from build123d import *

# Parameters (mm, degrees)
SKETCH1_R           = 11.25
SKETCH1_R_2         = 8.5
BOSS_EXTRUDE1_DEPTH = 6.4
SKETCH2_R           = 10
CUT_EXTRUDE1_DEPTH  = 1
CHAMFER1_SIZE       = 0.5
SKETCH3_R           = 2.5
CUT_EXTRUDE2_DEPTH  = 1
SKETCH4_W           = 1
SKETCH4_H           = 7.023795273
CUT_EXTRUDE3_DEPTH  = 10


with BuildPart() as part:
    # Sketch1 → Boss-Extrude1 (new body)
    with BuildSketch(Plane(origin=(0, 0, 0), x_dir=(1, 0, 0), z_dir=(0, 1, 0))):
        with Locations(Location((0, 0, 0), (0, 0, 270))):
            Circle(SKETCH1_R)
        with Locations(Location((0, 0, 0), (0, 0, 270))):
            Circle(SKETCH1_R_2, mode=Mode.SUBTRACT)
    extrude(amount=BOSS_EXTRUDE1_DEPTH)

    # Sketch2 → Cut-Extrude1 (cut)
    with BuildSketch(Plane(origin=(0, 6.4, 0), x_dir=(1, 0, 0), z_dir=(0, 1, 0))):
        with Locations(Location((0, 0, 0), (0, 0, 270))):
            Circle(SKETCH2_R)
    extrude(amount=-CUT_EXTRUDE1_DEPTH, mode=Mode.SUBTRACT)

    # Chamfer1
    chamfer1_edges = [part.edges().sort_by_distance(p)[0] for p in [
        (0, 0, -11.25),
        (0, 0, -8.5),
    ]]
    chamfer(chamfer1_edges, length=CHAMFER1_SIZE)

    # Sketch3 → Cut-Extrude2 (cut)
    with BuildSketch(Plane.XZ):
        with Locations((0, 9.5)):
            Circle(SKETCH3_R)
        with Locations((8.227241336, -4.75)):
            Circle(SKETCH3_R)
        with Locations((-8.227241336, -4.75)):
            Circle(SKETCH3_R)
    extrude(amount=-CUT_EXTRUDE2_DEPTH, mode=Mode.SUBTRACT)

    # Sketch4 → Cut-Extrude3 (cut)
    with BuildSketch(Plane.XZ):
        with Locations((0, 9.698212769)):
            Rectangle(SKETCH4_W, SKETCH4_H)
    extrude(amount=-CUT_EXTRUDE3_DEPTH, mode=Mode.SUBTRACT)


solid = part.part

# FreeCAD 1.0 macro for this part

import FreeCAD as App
import Part
import Sketcher


def edges_at(feature, points):
    """Names of the edges that pass closest to the given points."""
    edges = feature.Shape.Edges
    near = lambda p: min(range(len(edges)), key=lambda i: edges[i].distToShape(Part.Vertex(*p))[0])
    return sorted({f"Edge{near(p) + 1}" for p in points})


def add_polygon(sketch, points):
    """Adds a closed chain of lines whose ends are joined by coincident constraints."""
    first, n = sketch.GeometryCount, len(points)
    for a, b in zip(points, points[1:] + points[:1]):
        sketch.addGeometry(Part.LineSegment(App.Vector(*a, 0), App.Vector(*b, 0)), False)
    for i in range(n):
        sketch.addConstraint(Sketcher.Constraint("Coincident", first + i, 2, first + (i + 1) % n, 1))

doc = App.newDocument("Part")
body = doc.addObject("PartDesign::Body", "Body")

sketch1 = doc.addObject("Sketcher::SketchObject", "Sketch")
body.addObject(sketch1)
sketch1.AttachmentSupport = (doc.XZ_Plane, [""])
sketch1.MapMode = "FlatFace"
sketch1.addGeometry([
    Part.Circle(App.Vector(0, 0, 0), App.Vector(0, 0, 1), 11),
    Part.Circle(App.Vector(0, 0, 0), App.Vector(0, 0, 1), 8),
], False)
sketch1.addConstraint([
    Sketcher.Constraint("Coincident", 0, 3, -1, 1),
    Sketcher.Constraint("Coincident", 1, 3, -1, 1),
    Sketcher.Constraint("Diameter", 1, 17.0),
    Sketcher.Constraint("Diameter", 0, 22.5),
])
pad1 = doc.addObject("PartDesign::Pad", "Pad")
body.addObject(pad1)
pad1.Profile = sketch1
pad1.Length = 6.4
pad1.Reversed = True

sketch2 = doc.addObject("Sketcher::SketchObject", "Sketch001")
body.addObject(sketch2)
sketch2.AttachmentSupport = (doc.XZ_Plane, [""])
sketch2.MapMode = "FlatFace"
sketch2.AttachmentOffset = App.Placement(App.Vector(0, 0, -6.4), App.Rotation())
sketch2.addGeometry(Part.Circle(App.Vector(0, 0, 0), App.Vector(0, 0, 1), 10), False)
sketch2.addConstraint([
    Sketcher.Constraint("Coincident", 0, 3, -1, 1),
    Sketcher.Constraint("Diameter", 0, 20.0),
])
pocket1 = doc.addObject("PartDesign::Pocket", "Pocket")
body.addObject(pocket1)
pocket1.Profile = sketch2
pocket1.Length = 1
pocket1.Reversed = True
doc.recompute()

chamfer = doc.addObject("PartDesign::Chamfer", "Chamfer")
body.addObject(chamfer)
chamfer.Base = (pocket1, edges_at(pocket1, [(0, 0, -11.25), (0, 0, -8.5)]))
chamfer.Size = 0.5

sketch3 = doc.addObject("Sketcher::SketchObject", "Sketch002")
body.addObject(sketch3)
sketch3.AttachmentSupport = (doc.XZ_Plane, [""])
sketch3.MapMode = "FlatFace"
sketch3.addGeometry([
    Part.Circle(App.Vector(0, 9.5, 0), App.Vector(0, 0, 1), 2.5),
    Part.Circle(App.Vector(8.2, -4.8, 0), App.Vector(0, 0, 1), 2.5),
    Part.Circle(App.Vector(-8.2, -4.8, 0), App.Vector(0, 0, 1), 2.5),
], False)
sketch3.addConstraint([
    Sketcher.Constraint("Equal", 0, 1),
    Sketcher.Constraint("Equal", 1, 2),
    Sketcher.Constraint("Symmetric", 1, 3, 2, 3, -2),
    Sketcher.Constraint("PointOnObject", 0, 3, -2),
    Sketcher.Constraint("Diameter", 0, 5.0),
    Sketcher.Constraint("DistanceY", -1, 1, 0, 3, 9.5),
    Sketcher.Constraint("DistanceY", 1, 3, -1, 1, 4.75),
    Sketcher.Constraint("DistanceX", -1, 1, 1, 3, 8.227241),
])
pocket2 = doc.addObject("PartDesign::Pocket", "Pocket001")
body.addObject(pocket2)
pocket2.Profile = sketch3
pocket2.Length = 1

sketch4 = doc.addObject("Sketcher::SketchObject", "Sketch003")
body.addObject(sketch4)
sketch4.AttachmentSupport = (doc.XZ_Plane, [""])
sketch4.MapMode = "FlatFace"
add_polygon(sketch4, [(-0.5, 13.2), (-0.5, 6.2), (0.5, 6.2), (0.5, 13.2)])
sketch4.addConstraint([
    Sketcher.Constraint("Vertical", 0),
    Sketcher.Constraint("Horizontal", 1),
    Sketcher.Constraint("Vertical", 2),
    Sketcher.Constraint("Horizontal", 3),
    Sketcher.Constraint("DistanceX", 1, 1, 1, 2, 1.0),
    Sketcher.Constraint("DistanceX", 0, 2, -1, 1, 0.5),
    Sketcher.Constraint("DistanceY", 0, 2, 0, 1, 7.023795),
    Sketcher.Constraint("DistanceY", -1, 1, 2, 2, 13.21011),
])
pocket3 = doc.addObject("PartDesign::Pocket", "Pocket002")
body.addObject(pocket3)
pocket3.Profile = sketch4
pocket3.Length = 10

doc.recompute()
